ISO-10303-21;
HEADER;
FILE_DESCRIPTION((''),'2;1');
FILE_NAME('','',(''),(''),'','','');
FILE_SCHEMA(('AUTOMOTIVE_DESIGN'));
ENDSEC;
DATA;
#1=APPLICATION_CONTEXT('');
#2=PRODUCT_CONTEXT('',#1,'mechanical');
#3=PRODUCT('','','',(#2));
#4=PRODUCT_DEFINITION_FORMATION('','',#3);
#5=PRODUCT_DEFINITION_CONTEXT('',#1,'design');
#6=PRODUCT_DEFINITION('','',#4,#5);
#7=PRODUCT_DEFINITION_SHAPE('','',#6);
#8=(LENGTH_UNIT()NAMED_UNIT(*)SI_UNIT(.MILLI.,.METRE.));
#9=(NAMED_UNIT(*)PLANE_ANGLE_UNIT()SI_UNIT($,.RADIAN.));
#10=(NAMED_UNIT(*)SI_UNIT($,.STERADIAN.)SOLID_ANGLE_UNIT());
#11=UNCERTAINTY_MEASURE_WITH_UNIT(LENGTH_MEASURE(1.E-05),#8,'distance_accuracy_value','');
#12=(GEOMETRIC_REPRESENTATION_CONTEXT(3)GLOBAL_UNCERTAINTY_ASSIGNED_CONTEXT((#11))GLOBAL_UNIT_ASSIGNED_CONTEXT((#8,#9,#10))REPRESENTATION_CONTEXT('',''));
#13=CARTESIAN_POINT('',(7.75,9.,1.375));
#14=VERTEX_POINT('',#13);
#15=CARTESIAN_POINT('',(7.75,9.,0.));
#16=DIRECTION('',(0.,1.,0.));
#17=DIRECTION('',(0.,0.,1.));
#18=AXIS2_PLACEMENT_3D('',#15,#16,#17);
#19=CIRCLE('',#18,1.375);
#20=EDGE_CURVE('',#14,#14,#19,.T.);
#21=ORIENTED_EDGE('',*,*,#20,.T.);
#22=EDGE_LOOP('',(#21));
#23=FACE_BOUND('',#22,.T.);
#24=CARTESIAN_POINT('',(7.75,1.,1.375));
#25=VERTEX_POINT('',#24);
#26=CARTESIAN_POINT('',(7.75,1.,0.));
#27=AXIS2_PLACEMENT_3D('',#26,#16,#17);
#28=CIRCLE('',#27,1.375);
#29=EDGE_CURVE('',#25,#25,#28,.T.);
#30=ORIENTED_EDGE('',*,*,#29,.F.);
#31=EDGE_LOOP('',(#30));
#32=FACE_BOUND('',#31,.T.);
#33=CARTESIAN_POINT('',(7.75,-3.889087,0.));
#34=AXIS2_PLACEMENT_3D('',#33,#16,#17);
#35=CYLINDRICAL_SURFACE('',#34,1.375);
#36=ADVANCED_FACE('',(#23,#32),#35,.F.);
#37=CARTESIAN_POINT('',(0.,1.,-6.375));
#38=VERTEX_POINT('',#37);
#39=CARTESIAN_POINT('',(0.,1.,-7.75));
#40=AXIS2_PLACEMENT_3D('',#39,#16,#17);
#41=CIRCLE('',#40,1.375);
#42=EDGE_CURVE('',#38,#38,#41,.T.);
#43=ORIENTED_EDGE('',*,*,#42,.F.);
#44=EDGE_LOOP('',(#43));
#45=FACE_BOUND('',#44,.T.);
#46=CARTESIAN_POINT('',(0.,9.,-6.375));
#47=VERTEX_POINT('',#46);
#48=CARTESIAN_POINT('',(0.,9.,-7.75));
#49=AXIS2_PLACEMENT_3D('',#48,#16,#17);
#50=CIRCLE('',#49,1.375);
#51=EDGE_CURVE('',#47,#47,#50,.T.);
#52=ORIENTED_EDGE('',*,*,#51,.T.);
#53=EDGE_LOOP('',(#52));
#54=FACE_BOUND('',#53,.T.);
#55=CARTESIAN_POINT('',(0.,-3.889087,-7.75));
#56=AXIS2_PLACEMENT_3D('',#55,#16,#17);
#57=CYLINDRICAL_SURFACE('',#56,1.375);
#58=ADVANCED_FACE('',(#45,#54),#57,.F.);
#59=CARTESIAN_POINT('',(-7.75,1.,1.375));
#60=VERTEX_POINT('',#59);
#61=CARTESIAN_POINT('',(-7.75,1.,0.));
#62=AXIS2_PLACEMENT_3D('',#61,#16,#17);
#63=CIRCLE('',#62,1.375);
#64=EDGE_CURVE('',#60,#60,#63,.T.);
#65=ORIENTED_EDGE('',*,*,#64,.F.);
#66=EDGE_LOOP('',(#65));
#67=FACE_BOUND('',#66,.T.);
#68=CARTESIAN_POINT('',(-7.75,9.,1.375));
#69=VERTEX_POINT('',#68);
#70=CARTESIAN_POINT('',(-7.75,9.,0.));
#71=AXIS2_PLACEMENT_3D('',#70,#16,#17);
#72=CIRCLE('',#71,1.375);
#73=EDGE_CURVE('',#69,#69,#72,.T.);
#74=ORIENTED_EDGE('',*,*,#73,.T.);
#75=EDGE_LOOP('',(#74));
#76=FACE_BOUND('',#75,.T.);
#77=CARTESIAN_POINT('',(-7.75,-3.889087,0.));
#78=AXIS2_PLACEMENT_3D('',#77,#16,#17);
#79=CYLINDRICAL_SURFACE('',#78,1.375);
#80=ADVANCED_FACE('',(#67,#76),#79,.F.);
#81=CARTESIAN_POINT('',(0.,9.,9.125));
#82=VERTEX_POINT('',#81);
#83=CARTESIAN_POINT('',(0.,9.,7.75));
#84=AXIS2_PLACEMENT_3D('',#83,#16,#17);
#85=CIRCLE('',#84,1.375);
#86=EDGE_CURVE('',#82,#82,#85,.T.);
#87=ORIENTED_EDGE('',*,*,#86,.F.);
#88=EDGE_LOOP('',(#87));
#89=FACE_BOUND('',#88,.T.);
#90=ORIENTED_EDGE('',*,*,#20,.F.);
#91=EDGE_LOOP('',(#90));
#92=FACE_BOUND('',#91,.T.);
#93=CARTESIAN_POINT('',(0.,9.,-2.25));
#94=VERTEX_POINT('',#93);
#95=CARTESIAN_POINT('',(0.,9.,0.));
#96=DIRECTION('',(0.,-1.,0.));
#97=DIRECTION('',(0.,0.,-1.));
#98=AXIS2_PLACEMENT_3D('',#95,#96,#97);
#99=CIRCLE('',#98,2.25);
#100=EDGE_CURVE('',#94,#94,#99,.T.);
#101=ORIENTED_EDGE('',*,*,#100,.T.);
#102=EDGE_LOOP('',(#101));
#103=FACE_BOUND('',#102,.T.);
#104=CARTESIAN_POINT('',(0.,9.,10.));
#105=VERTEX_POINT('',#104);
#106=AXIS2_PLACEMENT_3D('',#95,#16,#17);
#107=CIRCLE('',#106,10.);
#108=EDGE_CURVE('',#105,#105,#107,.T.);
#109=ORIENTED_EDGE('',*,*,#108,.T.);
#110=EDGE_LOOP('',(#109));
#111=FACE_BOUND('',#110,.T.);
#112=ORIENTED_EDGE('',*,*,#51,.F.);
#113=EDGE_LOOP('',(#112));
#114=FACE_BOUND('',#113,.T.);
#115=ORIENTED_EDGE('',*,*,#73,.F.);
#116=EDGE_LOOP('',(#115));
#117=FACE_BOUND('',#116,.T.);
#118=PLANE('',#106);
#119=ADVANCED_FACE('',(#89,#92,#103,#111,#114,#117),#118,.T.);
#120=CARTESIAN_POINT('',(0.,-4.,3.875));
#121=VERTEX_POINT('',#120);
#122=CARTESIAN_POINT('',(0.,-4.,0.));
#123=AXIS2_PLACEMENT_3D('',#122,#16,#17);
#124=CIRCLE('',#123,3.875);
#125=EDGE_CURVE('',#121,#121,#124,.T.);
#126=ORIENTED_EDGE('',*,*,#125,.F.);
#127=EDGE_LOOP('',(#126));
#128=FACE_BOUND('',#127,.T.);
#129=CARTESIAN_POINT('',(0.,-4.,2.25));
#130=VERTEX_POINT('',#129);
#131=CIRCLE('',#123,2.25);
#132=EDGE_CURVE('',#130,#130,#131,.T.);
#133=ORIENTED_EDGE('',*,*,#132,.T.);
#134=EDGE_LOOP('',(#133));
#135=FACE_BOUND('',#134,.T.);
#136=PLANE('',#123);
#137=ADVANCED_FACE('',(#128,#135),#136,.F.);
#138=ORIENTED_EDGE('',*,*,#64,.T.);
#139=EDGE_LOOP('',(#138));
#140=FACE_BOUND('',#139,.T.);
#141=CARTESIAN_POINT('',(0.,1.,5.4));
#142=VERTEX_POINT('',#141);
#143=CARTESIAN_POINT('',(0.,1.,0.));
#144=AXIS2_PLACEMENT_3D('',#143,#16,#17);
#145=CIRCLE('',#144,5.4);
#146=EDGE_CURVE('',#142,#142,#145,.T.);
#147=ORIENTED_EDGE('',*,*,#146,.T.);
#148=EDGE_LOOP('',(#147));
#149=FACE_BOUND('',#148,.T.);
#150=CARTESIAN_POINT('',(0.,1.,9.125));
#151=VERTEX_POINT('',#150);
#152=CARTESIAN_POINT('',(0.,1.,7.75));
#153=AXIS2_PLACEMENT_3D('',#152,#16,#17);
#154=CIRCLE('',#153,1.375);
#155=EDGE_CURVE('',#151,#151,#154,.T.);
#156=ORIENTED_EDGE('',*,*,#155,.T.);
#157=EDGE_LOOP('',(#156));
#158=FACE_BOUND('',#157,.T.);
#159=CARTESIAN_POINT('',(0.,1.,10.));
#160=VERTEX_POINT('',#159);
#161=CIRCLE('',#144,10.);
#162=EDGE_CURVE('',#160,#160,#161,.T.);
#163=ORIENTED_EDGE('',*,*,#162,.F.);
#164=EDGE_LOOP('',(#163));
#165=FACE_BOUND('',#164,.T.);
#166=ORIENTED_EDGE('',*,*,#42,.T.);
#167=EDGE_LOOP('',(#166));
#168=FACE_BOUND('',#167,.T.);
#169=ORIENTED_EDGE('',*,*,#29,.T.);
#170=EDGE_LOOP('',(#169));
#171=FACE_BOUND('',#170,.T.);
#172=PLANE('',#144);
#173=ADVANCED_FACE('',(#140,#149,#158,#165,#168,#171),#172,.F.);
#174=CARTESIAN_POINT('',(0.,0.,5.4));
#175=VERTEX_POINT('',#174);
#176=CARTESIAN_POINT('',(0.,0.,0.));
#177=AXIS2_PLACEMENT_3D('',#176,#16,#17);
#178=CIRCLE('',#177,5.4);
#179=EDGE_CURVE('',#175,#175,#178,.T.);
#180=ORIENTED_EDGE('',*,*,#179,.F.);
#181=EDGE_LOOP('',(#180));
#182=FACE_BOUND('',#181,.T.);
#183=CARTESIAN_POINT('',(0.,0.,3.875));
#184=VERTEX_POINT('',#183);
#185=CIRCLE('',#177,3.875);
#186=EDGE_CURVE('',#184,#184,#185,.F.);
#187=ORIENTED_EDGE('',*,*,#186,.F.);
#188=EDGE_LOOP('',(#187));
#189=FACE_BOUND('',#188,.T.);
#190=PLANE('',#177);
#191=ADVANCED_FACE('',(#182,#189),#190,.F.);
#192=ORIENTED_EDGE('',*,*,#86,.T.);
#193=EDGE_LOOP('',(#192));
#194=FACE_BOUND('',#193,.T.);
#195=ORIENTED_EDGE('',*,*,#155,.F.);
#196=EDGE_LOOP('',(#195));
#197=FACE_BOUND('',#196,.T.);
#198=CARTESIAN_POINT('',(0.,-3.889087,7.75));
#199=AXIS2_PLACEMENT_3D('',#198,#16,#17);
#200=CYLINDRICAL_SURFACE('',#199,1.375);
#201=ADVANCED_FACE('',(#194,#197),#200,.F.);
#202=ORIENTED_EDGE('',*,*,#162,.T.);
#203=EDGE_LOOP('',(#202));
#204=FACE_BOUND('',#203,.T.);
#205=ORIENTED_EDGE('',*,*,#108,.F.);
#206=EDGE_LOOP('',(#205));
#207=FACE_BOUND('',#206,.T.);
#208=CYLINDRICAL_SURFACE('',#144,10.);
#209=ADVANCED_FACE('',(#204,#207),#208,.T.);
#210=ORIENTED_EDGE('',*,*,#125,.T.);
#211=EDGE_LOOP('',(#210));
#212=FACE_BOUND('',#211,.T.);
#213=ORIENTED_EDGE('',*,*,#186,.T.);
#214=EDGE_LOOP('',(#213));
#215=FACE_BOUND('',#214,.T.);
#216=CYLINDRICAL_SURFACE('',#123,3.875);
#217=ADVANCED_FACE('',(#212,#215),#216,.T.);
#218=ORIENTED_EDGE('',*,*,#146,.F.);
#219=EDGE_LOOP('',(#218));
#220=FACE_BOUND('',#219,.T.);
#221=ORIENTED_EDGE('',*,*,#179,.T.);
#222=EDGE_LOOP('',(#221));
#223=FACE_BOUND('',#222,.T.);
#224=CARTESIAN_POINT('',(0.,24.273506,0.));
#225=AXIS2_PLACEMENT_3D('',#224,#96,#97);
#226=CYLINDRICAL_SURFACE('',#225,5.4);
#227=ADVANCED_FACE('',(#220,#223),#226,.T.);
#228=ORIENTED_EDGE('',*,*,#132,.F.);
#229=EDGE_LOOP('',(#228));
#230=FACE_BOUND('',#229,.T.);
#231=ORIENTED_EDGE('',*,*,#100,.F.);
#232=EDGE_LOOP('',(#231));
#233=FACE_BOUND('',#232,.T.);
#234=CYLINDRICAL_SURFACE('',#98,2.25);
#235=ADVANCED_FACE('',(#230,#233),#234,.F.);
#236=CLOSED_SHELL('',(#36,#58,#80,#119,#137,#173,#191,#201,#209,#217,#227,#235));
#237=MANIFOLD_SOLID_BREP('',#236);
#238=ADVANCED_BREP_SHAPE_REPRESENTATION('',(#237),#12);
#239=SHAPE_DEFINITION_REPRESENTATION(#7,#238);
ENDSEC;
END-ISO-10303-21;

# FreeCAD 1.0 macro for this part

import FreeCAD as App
import Part
import Sketcher
Q = App.Units.Quantity

doc = App.newDocument("Part")
body = doc.addObject("PartDesign::Body", "Body")

# Sketch on XZ plane
sketch1 = body.newObject("Sketcher::SketchObject", "Sketch")
sketch1.AttachmentSupport = (doc.getObject("XZ_Plane"), [""])
sketch1.MapMode = "FlatFace"
sketch1.addGeometry(Part.Circle(App.Vector(0, 0, 0), App.Vector(0, 0, 1), 3.875), False)
sketch1.addConstraint([
    Sketcher.Constraint("Coincident", 0, 3, -1, 1),
    Sketcher.Constraint("Diameter", 0, Q("7.75 mm")),
])
pad1 = body.newObject("PartDesign::Pad", "Pad")
pad1.Profile = sketch1
pad1.Type = "TwoLengths"
pad1.Length = 9
pad1.Length2 = 4
pad1.Reversed = True

# Sketch on XZ plane
sketch2 = body.newObject("Sketcher::SketchObject", "Sketch001")
sketch2.AttachmentSupport = (doc.getObject("XZ_Plane"), [""])
sketch2.MapMode = "FlatFace"
sketch2.addGeometry(Part.Circle(App.Vector(0, 0, 0), App.Vector(0, 0, 1), 5.4), False)
sketch2.addConstraint([
    Sketcher.Constraint("Coincident", 0, 3, -1, 1),
    Sketcher.Constraint("Diameter", 0, Q("10.8 mm")),
])
pad2 = body.newObject("PartDesign::Pad", "Pad001")
pad2.Profile = sketch2
pad2.Length = 9
pad2.Reversed = True

# Sketch on XZ plane
sketch3 = body.newObject("Sketcher::SketchObject", "Sketch002")
sketch3.AttachmentSupport = (doc.getObject("XZ_Plane"), [""])
sketch3.MapMode = "FlatFace"
sketch3.AttachmentOffset = App.Placement(App.Vector(0, 0, -9), App.Rotation())
sketch3.addGeometry(Part.Circle(App.Vector(0, 0, 0), App.Vector(0, 0, 1), 10), False)
sketch3.addConstraint([
    Sketcher.Constraint("Coincident", 0, 3, -1, 1),
    Sketcher.Constraint("Diameter", 0, Q("20 mm")),
])
pad3 = body.newObject("PartDesign::Pad", "Pad002")
pad3.Profile = sketch3
pad3.Length = 8

# Sketch on XZ plane
sketch4 = body.newObject("Sketcher::SketchObject", "Sketch003")
sketch4.AttachmentSupport = (doc.getObject("XZ_Plane"), [""])
sketch4.MapMode = "FlatFace"
sketch4.AttachmentOffset = App.Placement(App.Vector(0, 0, 4), App.Rotation())
sketch4.addGeometry(Part.Circle(App.Vector(0, 0, 0), App.Vector(0, 0, 1), 2.25), False)
sketch4.addConstraint([
    Sketcher.Constraint("Coincident", 0, 3, -1, 1),
    Sketcher.Constraint("Diameter", 0, Q("4.5 mm")),
])
pocket1 = body.newObject("PartDesign::Pocket", "Pocket")
pocket1.Profile = sketch4
pocket1.Type = "ThroughAll"
pocket1.Midplane = True

# Sketch on XZ plane
sketch5 = body.newObject("Sketcher::SketchObject", "Sketch004")
sketch5.AttachmentSupport = (doc.getObject("XZ_Plane"), [""])
sketch5.MapMode = "FlatFace"
sketch5.addGeometry(Part.Circle(App.Vector(-7.75, 0, 0), App.Vector(0, 0, 1), 1.375), False)
sketch5.addConstraint([
    Sketcher.Constraint("PointOnObject", 0, 3, -1),
    Sketcher.Constraint("Diameter", 0, Q("2.75 mm")),
    Sketcher.Constraint("DistanceX", 0, 3, -1, 1, Q("7.75 mm")),
])
pocket2 = body.newObject("PartDesign::Pocket", "Pocket001")
pocket2.Profile = sketch5
pocket2.Length = 10
doc.recompute()

polarpattern = body.newObject("PartDesign::PolarPattern", "PolarPattern")
polarpattern.Originals = [pocket2]
polarpattern.Axis = (doc.getObject("Y_Axis"), [""])
polarpattern.Angle = 360
polarpattern.Occurrences = 4
body.Tip = polarpattern

doc.recompute()
